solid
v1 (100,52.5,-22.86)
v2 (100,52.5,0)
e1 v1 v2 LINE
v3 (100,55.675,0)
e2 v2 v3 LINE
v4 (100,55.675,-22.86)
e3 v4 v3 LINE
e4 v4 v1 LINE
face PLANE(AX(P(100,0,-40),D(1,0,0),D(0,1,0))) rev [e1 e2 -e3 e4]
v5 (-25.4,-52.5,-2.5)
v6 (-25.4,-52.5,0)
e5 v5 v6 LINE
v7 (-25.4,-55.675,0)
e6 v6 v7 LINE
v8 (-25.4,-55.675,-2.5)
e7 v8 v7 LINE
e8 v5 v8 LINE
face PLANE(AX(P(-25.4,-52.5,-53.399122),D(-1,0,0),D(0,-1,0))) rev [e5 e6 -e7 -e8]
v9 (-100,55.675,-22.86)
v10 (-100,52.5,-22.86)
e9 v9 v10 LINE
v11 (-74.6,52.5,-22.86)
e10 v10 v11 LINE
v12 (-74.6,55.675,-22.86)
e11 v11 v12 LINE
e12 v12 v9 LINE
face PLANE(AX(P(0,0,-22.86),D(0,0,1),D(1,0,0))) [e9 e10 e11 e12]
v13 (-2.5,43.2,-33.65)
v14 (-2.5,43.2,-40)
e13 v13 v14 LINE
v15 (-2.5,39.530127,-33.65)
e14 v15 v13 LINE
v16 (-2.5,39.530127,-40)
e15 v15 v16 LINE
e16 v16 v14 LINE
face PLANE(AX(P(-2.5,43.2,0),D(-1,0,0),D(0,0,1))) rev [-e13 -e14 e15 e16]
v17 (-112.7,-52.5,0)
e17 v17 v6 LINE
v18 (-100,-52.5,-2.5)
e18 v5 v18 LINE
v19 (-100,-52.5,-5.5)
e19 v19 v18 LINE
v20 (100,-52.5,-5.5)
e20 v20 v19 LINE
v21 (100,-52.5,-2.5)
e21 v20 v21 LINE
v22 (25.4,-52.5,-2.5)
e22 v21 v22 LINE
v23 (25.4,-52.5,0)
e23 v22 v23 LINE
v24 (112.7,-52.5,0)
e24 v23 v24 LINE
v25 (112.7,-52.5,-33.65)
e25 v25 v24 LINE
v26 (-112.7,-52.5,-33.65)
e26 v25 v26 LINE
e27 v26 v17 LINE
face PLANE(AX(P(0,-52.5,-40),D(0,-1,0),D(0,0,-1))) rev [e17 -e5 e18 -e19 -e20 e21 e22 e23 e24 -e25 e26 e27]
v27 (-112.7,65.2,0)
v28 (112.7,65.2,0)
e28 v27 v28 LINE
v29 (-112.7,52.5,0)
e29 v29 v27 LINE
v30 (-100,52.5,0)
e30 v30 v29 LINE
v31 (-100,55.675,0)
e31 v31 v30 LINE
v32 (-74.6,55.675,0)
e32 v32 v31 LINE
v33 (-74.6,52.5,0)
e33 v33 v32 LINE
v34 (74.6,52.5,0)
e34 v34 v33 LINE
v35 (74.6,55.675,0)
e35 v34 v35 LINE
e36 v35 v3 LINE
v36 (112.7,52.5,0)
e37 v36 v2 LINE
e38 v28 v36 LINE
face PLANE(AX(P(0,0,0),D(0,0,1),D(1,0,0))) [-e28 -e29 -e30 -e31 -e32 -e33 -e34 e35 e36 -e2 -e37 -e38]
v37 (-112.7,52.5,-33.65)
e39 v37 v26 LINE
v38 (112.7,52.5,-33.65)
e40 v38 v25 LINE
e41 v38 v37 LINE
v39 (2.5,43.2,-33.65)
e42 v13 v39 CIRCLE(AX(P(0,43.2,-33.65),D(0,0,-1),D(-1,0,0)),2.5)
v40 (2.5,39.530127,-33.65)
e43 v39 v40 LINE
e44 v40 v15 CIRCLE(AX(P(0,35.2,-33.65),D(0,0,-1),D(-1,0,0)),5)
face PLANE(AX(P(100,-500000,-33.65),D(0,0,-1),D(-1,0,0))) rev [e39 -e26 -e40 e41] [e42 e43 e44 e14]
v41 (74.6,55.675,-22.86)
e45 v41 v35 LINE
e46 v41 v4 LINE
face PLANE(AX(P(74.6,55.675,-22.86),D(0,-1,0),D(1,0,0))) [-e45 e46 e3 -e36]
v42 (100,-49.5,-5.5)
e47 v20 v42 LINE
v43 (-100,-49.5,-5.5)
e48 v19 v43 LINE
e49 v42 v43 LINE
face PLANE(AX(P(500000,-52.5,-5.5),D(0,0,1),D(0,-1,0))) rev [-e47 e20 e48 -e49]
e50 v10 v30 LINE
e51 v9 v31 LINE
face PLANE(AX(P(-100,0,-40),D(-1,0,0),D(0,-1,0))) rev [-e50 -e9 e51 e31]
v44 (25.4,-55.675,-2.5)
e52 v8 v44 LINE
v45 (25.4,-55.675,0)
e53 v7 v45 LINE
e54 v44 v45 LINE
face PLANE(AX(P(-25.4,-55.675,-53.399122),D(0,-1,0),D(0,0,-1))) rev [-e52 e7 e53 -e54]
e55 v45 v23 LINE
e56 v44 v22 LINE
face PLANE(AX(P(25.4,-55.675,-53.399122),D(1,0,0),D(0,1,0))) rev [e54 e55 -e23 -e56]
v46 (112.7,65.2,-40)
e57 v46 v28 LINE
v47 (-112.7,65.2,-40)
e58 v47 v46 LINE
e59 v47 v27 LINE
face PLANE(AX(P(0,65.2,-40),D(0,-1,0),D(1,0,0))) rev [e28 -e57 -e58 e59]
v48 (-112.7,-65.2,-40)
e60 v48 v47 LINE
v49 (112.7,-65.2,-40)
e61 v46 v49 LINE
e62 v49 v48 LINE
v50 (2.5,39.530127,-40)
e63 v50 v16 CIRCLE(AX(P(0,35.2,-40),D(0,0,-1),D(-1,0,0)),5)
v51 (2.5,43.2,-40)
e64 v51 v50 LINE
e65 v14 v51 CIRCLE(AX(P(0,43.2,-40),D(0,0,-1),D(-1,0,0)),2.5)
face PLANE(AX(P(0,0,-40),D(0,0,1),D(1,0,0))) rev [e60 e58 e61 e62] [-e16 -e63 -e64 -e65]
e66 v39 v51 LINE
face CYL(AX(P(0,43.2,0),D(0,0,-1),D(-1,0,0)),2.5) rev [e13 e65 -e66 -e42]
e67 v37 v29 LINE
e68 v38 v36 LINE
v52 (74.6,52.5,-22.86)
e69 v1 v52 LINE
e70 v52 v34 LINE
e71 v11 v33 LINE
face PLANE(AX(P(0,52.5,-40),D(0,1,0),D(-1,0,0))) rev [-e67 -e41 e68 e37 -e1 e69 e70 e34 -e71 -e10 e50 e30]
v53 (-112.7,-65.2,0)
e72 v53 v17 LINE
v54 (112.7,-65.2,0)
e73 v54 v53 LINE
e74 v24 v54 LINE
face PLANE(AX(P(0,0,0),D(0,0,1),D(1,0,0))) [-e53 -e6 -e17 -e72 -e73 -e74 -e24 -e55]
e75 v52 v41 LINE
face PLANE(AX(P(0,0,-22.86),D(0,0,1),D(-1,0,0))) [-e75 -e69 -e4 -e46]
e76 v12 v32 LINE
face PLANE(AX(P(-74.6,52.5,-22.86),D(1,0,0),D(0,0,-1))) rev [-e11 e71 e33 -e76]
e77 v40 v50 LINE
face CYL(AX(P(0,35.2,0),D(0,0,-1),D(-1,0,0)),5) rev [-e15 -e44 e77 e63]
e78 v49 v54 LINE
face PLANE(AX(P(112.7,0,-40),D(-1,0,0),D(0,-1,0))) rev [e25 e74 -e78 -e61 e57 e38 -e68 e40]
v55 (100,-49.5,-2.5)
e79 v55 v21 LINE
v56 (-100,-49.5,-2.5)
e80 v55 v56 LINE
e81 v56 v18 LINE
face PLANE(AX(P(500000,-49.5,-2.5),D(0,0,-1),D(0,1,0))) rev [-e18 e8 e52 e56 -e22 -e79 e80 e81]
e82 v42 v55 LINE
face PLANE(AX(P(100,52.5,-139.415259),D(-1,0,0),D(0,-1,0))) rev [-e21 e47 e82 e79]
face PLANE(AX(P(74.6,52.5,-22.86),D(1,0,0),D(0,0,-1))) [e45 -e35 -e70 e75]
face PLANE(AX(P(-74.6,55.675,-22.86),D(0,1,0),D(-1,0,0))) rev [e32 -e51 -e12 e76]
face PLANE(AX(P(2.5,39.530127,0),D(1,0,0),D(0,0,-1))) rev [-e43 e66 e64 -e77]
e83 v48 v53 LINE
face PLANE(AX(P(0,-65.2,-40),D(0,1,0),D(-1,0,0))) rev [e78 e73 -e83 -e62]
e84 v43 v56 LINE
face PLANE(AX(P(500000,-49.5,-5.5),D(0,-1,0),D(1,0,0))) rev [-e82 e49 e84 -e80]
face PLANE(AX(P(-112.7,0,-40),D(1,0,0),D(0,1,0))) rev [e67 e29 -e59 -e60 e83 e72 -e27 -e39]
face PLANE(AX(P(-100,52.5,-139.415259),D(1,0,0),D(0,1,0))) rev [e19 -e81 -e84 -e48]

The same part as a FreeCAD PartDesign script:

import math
import FreeCAD as App
import Part
import Sketcher

V = App.Vector

doc = App.newDocument("Part")
body = doc.addObject("PartDesign::Body", "Body")

# Sketch on XY plane
sketch1 = body.newObject("Sketcher::SketchObject", "Sketch")
sketch1.AttachmentSupport = (doc.getObject("XY_Plane"), [""])
sketch1.MapMode = "FlatFace"
sketch1.addGeometry([
    Part.LineSegment(V(-113, 65, 0), V(-113, -65, 0)),  # 0
    Part.LineSegment(V(-113, -65, 0), V(113, -65, 0)),  # 1
    Part.LineSegment(V(113, -65, 0), V(113, 65, 0)),  # 2
    Part.LineSegment(V(113, 65, 0), V(-113, 65, 0)),  # 3
    Part.LineSegment(V(100, -52, 0), V(-100, -52, 0)),  # 4
    Part.LineSegment(V(-100, -52, 0), V(-100, 52, 0)),  # 5
    Part.LineSegment(V(-100, 52, 0), V(100, 52, 0)),  # 6
    Part.LineSegment(V(100, 52, 0), V(100, -52, 0)),  # 7
], False)
sketch1.addConstraint([
    Sketcher.Constraint("Coincident", 0, 2, 1, 1),
    Sketcher.Constraint("Coincident", 1, 2, 2, 1),
    Sketcher.Constraint("Coincident", 2, 2, 3, 1),
    Sketcher.Constraint("Coincident", 3, 2, 0, 1),
    Sketcher.Constraint("Coincident", 4, 2, 5, 1),
    Sketcher.Constraint("Coincident", 5, 2, 6, 1),
    Sketcher.Constraint("Coincident", 6, 2, 7, 1),
    Sketcher.Constraint("Coincident", 7, 2, 4, 1),
    Sketcher.Constraint("Vertical", 0),
    Sketcher.Constraint("Horizontal", 1),
    Sketcher.Constraint("Vertical", 2),
    Sketcher.Constraint("Horizontal", 3),
    Sketcher.Constraint("Horizontal", 4),
    Sketcher.Constraint("Vertical", 5),
    Sketcher.Constraint("Horizontal", 6),
    Sketcher.Constraint("Vertical", 7),
    Sketcher.Constraint("Symmetric", 0, 2, 2, 2, -1, 1),
    Sketcher.Constraint("Symmetric", 4, 2, 6, 2, -1, 1),
    Sketcher.Constraint("DistanceX", 4, 2, 4, 1, 200.0),
    Sketcher.Constraint("DistanceY", 5, 1, 5, 2, 105.0),
    Sketcher.Constraint("DistanceX", 1, 1, 1, 2, 225.4),
    Sketcher.Constraint("DistanceY", 0, 2, 0, 1, 130.4),
])
pad1 = body.newObject("PartDesign::Pad", "Pad")
pad1.Profile = sketch1
pad1.Length = 40
pad1.Reversed = True

# Sketch on XZ plane
sketch2 = body.newObject("Sketcher::SketchObject", "Sketch001")
sketch2.AttachmentSupport = (doc.getObject("XZ_Plane"), [""])
sketch2.MapMode = "FlatFace"
sketch2.AttachmentOffset = App.Placement(V(0, 0, -52.5), App.Rotation())
sketch2.addGeometry([
    Part.LineSegment(V(-100, -34, 0), V(-100, -40, 0)),
    Part.LineSegment(V(-100, -40, 0), V(100, -40, 0)),
    Part.LineSegment(V(100, -40, 0), V(100, -34, 0)),
    Part.LineSegment(V(100, -34, 0), V(-100, -34, 0)),
], False)
sketch2.addConstraint([
    Sketcher.Constraint("Coincident", 0, 2, 1, 1),
    Sketcher.Constraint("Coincident", 1, 2, 2, 1),
    Sketcher.Constraint("Coincident", 2, 2, 3, 1),
    Sketcher.Constraint("Coincident", 3, 2, 0, 1),
    Sketcher.Constraint("Vertical", 0),
    Sketcher.Constraint("Horizontal", 1),
    Sketcher.Constraint("Vertical", 2),
    Sketcher.Constraint("Horizontal", 3),
    Sketcher.Constraint("DistanceX", 1, 1, 1, 2, 200.0),
    Sketcher.Constraint("DistanceX", 0, 2, -1, 1, 100.0),
    Sketcher.Constraint("DistanceY", 0, 2, -1, 1, 40.0),
    Sketcher.Constraint("DistanceY", 0, 2, 0, 1, 6.35),
])
pad2 = body.newObject("PartDesign::Pad", "Pad001")
pad2.Profile = sketch2
pad2.Type = "UpToFirst"

# Sketch on XY plane
sketch3 = body.newObject("Sketcher::SketchObject", "Sketch002")
sketch3.AttachmentSupport = (doc.getObject("XY_Plane"), [""])
sketch3.MapMode = "FlatFace"
sketch3.AttachmentOffset = App.Placement(V(0, 0, -40), App.Rotation())
sketch3.addGeometry([
    Part.LineSegment(V(-2.5, 39.5, 0), V(-2.5, 43.2, 0)),
    Part.ArcOfCircle(Part.Circle(V(0, 43.2, 0), V(0, 0, 1), 2.5), math.radians(0), math.radians(180)),
    Part.LineSegment(V(2.5, 43.2, 0), V(2.5, 39.5, 0)),
    Part.ArcOfCircle(Part.Circle(V(0, 35.2, 0), V(0, 0, 1), 5), math.radians(120), math.radians(420)),
], False)
sketch3.addConstraint([
    Sketcher.Constraint("Tangent", 0, 2, 1, 2),
    Sketcher.Constraint("Tangent", 1, 1, 2, 1),
    Sketcher.Constraint("Coincident", 2, 2, 3, 2),
    Sketcher.Constraint("Coincident", 3, 1, 0, 1),
    Sketcher.Constraint("Vertical", 0),
    Sketcher.Constraint("Vertical", 2),
    Sketcher.Constraint("Symmetric", 2, 2, 3, 1, -2),
    Sketcher.Constraint("Radius", 3, 5.0),
    Sketcher.Constraint("Radius", 1, 2.5),
    Sketcher.Constraint("DistanceY", 3, 3, 1, 3, 8.0),
    Sketcher.Constraint("DistanceY", -1, 1, 1, 3, 43.2),
])
pocket1 = body.newObject("PartDesign::Pocket", "Pocket")
pocket1.Profile = sketch3
pocket1.Type = "ThroughAll"
pocket1.Reversed = True

# Sketch on YZ plane
sketch4 = body.newObject("Sketcher::SketchObject", "Sketch003")
sketch4.AttachmentSupport = (doc.getObject("YZ_Plane"), [""])
sketch4.MapMode = "FlatFace"
sketch4.AttachmentOffset = App.Placement(V(0, 0, 100), App.Rotation())
sketch4.addGeometry([
    Part.LineSegment(V(-48, -34, 0), V(-52, -34, 0)),
    Part.LineSegment(V(-52, -34, 0), V(-52, -26, 0)),
    Part.LineSegment(V(-52, -26, 0), V(-48, -26, 0)),
    Part.LineSegment(V(-48, -26, 0), V(-48, -34, 0)),
], False)
sketch4.addConstraint([
    Sketcher.Constraint("Coincident", 0, 2, 1, 1),
    Sketcher.Constraint("Coincident", 1, 2, 2, 1),
    Sketcher.Constraint("Coincident", 2, 2, 3, 1),
    Sketcher.Constraint("Coincident", 3, 2, 0, 1),
    Sketcher.Constraint("Horizontal", 0),
    Sketcher.Constraint("Vertical", 1),
    Sketcher.Constraint("Horizontal", 2),
    Sketcher.Constraint("Vertical", 3),
    Sketcher.Constraint("DistanceX", 0, 2, 0, 1, 5.0),
    Sketcher.Constraint("DistanceY", 1, 1, 1, 2, 7.5),
    Sketcher.Constraint("DistanceX", 0, 2, -1, 1, 52.5),
    Sketcher.Constraint("DistanceY", 0, 2, -1, 1, 33.65),
])
pocket2 = body.newObject("PartDesign::Pocket", "Pocket001")
pocket2.Profile = sketch4
pocket2.Type = "ThroughAll"
pocket2.Reversed = True

# Sketch on YZ plane
sketch5 = body.newObject("Sketcher::SketchObject", "Sketch004")
sketch5.AttachmentSupport = (doc.getObject("YZ_Plane"), [""])
sketch5.MapMode = "FlatFace"
sketch5.AttachmentOffset = App.Placement(V(0, 0, -100), App.Rotation())
sketch5.addGeometry([
    Part.LineSegment(V(-49.5, -2.5, 0), V(-52.5, -2.5, 0)),
    Part.LineSegment(V(-52.5, -2.5, 0), V(-52.5, -5.5, 0)),
    Part.LineSegment(V(-52.5, -5.5, 0), V(-49.5, -5.5, 0)),
    Part.LineSegment(V(-49.5, -5.5, 0), V(-49.5, -2.5, 0)),
], False)
sketch5.addConstraint([
    Sketcher.Constraint("Coincident", 0, 2, 1, 1),
    Sketcher.Constraint("Coincident", 1, 2, 2, 1),
    Sketcher.Constraint("Coincident", 2, 2, 3, 1),
    Sketcher.Constraint("Coincident", 3, 2, 0, 1),
    Sketcher.Constraint("Horizontal", 0),
    Sketcher.Constraint("Vertical", 1),
    Sketcher.Constraint("Horizontal", 2),
    Sketcher.Constraint("Vertical", 3),
    Sketcher.Constraint("Equal", 2, 1),
    Sketcher.Constraint("DistanceX", 0, 2, 0, 1, 3.0),
    Sketcher.Constraint("DistanceX", 0, 2, -1, 1, 52.5),
    Sketcher.Constraint("DistanceY", 0, 2, -1, 1, 2.5),
])
pad3 = body.newObject("PartDesign::Pad", "Pad002")
pad3.Profile = sketch5
pad3.Type = "UpToFirst"

# Sketch on XY plane
sketch6 = body.newObject("Sketcher::SketchObject", "Sketch005")
sketch6.AttachmentSupport = (doc.getObject("XY_Plane"), [""])
sketch6.MapMode = "FlatFace"
sketch6.addGeometry([
    Part.LineSegment(V(-25.4, -52.5, 0), V(-25.4, -55.7, 0)),
    Part.LineSegment(V(-25.4, -55.7, 0), V(25.4, -55.7, 0)),
    Part.LineSegment(V(25.4, -55.7, 0), V(25.4, -52.5, 0)),
    Part.LineSegment(V(25.4, -52.5, 0), V(-25.4, -52.5, 0)),
], False)
sketch6.addConstraint([
    Sketcher.Constraint("Coincident", 0, 2, 1, 1),
    Sketcher.Constraint("Coincident", 1, 2, 2, 1),
    Sketcher.Constraint("Coincident", 2, 2, 3, 1),
    Sketcher.Constraint("Coincident", 3, 2, 0, 1),
    Sketcher.Constraint("Vertical", 0),
    Sketcher.Constraint("Horizontal", 1),
    Sketcher.Constraint("Vertical", 2),
    Sketcher.Constraint("Horizontal", 3),
    Sketcher.Constraint("DistanceX", 1, 1, 1, 2, 50.8),
    Sketcher.Constraint("DistanceX", 0, 2, -1, 1, 25.4),
    Sketcher.Constraint("DistanceY", 2, 2, -1, 1, 52.5),
    Sketcher.Constraint("DistanceY", 0, 2, 0, 1, 3.175),
])
pocket3 = body.newObject("PartDesign::Pocket", "Pocket002")
pocket3.Profile = sketch6
pocket3.Length = 2.5

# Sketch on XY plane
sketch7 = body.newObject("Sketcher::SketchObject", "Sketch006")
sketch7.AttachmentSupport = (doc.getObject("XY_Plane"), [""])
sketch7.MapMode = "FlatFace"
sketch7.addGeometry([
    Part.LineSegment(V(-100, 55.7, 0), V(-100, 52.5, 0)),
    Part.LineSegment(V(-100, 52.5, 0), V(-74.6, 52.5, 0)),
    Part.LineSegment(V(-74.6, 52.5, 0), V(-74.6, 55.7, 0)),
    Part.LineSegment(V(-74.6, 55.7, 0), V(-100, 55.7, 0)),
], False)
sketch7.addConstraint([
    Sketcher.Constraint("Coincident", 0, 2, 1, 1),
    Sketcher.Constraint("Coincident", 1, 2, 2, 1),
    Sketcher.Constraint("Coincident", 2, 2, 3, 1),
    Sketcher.Constraint("Coincident", 3, 2, 0, 1),
    Sketcher.Constraint("Vertical", 0),
    Sketcher.Constraint("Horizontal", 1),
    Sketcher.Constraint("Vertical", 2),
    Sketcher.Constraint("Horizontal", 3),
    Sketcher.Constraint("DistanceX", 1, 1, 1, 2, 25.4),
    Sketcher.Constraint("DistanceX", 0, 2, -1, 1, 100.0),
    Sketcher.Constraint("DistanceY", -1, 1, 0, 2, 52.5),
    Sketcher.Constraint("DistanceY", 0, 2, 0, 1, 3.175),
])
pocket4 = body.newObject("PartDesign::Pocket", "Pocket003")
pocket4.Profile = sketch7
pocket4.Length = 22.86
doc.recompute()

mirrored = body.newObject("PartDesign::Mirrored", "Mirrored")
mirrored.Originals = [pocket4]
mirrored.MirrorPlane = (doc.getObject("YZ_Plane"), [""])
body.Tip = mirrored

# Sketch on XZ plane
sketch8 = body.newObject("Sketcher::SketchObject", "Sketch007")
sketch8.AttachmentSupport = (doc.getObject("XZ_Plane"), [""])
sketch8.MapMode = "FlatFace"
sketch8.AttachmentOffset = App.Placement(V(0, 0, 52.5), App.Rotation())
sketch8.addGeometry([
    Part.LineSegment(V(-4, -34, 0), V(-4, -29, 0)),
    Part.LineSegment(V(-4, -29, 0), V(4, -29, 0)),
    Part.LineSegment(V(4, -29, 0), V(4, -34, 0)),
    Part.LineSegment(V(4, -34, 0), V(-4, -34, 0)),
], False)
sketch8.addConstraint([
    Sketcher.Constraint("Coincident", 0, 2, 1, 1),
    Sketcher.Constraint("Coincident", 1, 2, 2, 1),
    Sketcher.Constraint("Coincident", 2, 2, 3, 1),
    Sketcher.Constraint("Coincident", 3, 2, 0, 1),
    Sketcher.Constraint("Vertical", 0),
    Sketcher.Constraint("Horizontal", 1),
    Sketcher.Constraint("Vertical", 2),
    Sketcher.Constraint("Horizontal", 3),
    Sketcher.Constraint("DistanceX", 1, 1, 1, 2, 7.493),
    Sketcher.Constraint("DistanceY", 2, 2, -1, 1, 33.65),
    Sketcher.Constraint("DistanceY", 0, 1, 0, 2, 5.0038),
    Sketcher.Constraint("DistanceX", 0, 2, -1, 1, 3.7465),
])
pocket5 = body.newObject("PartDesign::Pocket", "Pocket004")
pocket5.Profile = sketch8
pocket5.Type = "ThroughAll"
pocket5.Reversed = True

# Sketch on XY plane
sketch9 = body.newObject("Sketcher::SketchObject", "Sketch008")
sketch9.AttachmentSupport = (doc.getObject("XY_Plane"), [""])
sketch9.MapMode = "FlatFace"
sketch9.addGeometry([
    Part.LineSegment(V(-113, 52, 0), V(-113, -52, 0)),  # 0
    Part.LineSegment(V(-113, -52, 0), V(-100, -52, 0)),  # 1
    Part.LineSegment(V(-100, -52, 0), V(-100, 52, 0)),  # 2
    Part.LineSegment(V(-100, 52, 0), V(-113, 52, 0)),  # 3
    Part.LineSegment(V(100, 52, 0), V(100, -52, 0)),  # 4
    Part.LineSegment(V(100, -52, 0), V(113, -52, 0)),  # 5
    Part.LineSegment(V(113, -52, 0), V(113, 52, 0)),  # 6
    Part.LineSegment(V(113, 52, 0), V(100, 52, 0)),  # 7
], False)
sketch9.addConstraint([
    Sketcher.Constraint("Coincident", 0, 2, 1, 1),
    Sketcher.Constraint("Coincident", 1, 2, 2, 1),
    Sketcher.Constraint("Coincident", 2, 2, 3, 1),
    Sketcher.Constraint("Coincident", 3, 2, 0, 1),
    Sketcher.Constraint("Coincident", 4, 2, 5, 1),
    Sketcher.Constraint("Coincident", 5, 2, 6, 1),
    Sketcher.Constraint("Coincident", 6, 2, 7, 1),
    Sketcher.Constraint("Coincident", 7, 2, 4, 1),
    Sketcher.Constraint("Vertical", 0),
    Sketcher.Constraint("Horizontal", 1),
    Sketcher.Constraint("Vertical", 2),
    Sketcher.Constraint("Horizontal", 3),
    Sketcher.Constraint("Vertical", 4),
    Sketcher.Constraint("Horizontal", 5),
    Sketcher.Constraint("Vertical", 6),
    Sketcher.Constraint("Horizontal", 7),
    Sketcher.Constraint("Symmetric", 2, 2, 4, 2, -1, 1),
    Sketcher.Constraint("Symmetric", 0, 2, 6, 2, -1, 1),
    Sketcher.Constraint("Horizontal", 1, 2, 4, 2),
    Sketcher.Constraint("DistanceY", 0, 2, 0, 1, 105.0),
    Sketcher.Constraint("DistanceX", 1, 1, 1, 2, 12.7),
    Sketcher.Constraint("DistanceX", 1, 2, -1, 1, 100.0),
])
pocket6 = body.newObject("PartDesign::Pocket", "Pocket005")
pocket6.Profile = sketch9
pocket6.Length = 33.65

# Sketch on YZ plane
sketch10 = body.newObject("Sketcher::SketchObject", "Sketch009")
sketch10.AttachmentSupport = (doc.getObject("YZ_Plane"), [""])
sketch10.MapMode = "FlatFace"
sketch10.AttachmentOffset = App.Placement(V(0, 0, -3.7465), App.Rotation())
sketch10.addGeometry([
    Part.LineSegment(V(-52, -29, 0), V(-65, -29, 0)),
    Part.LineSegment(V(-65, -29, 0), V(-65, -34, 0)),
    Part.LineSegment(V(-65, -34, 0), V(-52, -34, 0)),
    Part.LineSegment(V(-52, -34, 0), V(-52, -29, 0)),
], False)
sketch10.addConstraint([
    Sketcher.Constraint("Coincident", 0, 2, 1, 1),
    Sketcher.Constraint("Coincident", 1, 2, 2, 1),
    Sketcher.Constraint("Coincident", 2, 2, 3, 1),
    Sketcher.Constraint("Coincident", 3, 2, 0, 1),
    Sketcher.Constraint("Horizontal", 0),
    Sketcher.Constraint("Vertical", 1),
    Sketcher.Constraint("Horizontal", 2),
    Sketcher.Constraint("Vertical", 3),
    Sketcher.Constraint("DistanceX", 0, 2, 0, 1, 12.7),
    Sketcher.Constraint("DistanceX", 0, 2, -1, 1, 65.2),
    Sketcher.Constraint("DistanceY", 1, 2, -1, 1, 33.65),
    Sketcher.Constraint("DistanceY", 1, 2, 1, 1, 5.0038),
])
pad4 = body.newObject("PartDesign::Pad", "Pad003")
pad4.Profile = sketch10
pad4.Type = "UpToFirst"

doc.recompute()
